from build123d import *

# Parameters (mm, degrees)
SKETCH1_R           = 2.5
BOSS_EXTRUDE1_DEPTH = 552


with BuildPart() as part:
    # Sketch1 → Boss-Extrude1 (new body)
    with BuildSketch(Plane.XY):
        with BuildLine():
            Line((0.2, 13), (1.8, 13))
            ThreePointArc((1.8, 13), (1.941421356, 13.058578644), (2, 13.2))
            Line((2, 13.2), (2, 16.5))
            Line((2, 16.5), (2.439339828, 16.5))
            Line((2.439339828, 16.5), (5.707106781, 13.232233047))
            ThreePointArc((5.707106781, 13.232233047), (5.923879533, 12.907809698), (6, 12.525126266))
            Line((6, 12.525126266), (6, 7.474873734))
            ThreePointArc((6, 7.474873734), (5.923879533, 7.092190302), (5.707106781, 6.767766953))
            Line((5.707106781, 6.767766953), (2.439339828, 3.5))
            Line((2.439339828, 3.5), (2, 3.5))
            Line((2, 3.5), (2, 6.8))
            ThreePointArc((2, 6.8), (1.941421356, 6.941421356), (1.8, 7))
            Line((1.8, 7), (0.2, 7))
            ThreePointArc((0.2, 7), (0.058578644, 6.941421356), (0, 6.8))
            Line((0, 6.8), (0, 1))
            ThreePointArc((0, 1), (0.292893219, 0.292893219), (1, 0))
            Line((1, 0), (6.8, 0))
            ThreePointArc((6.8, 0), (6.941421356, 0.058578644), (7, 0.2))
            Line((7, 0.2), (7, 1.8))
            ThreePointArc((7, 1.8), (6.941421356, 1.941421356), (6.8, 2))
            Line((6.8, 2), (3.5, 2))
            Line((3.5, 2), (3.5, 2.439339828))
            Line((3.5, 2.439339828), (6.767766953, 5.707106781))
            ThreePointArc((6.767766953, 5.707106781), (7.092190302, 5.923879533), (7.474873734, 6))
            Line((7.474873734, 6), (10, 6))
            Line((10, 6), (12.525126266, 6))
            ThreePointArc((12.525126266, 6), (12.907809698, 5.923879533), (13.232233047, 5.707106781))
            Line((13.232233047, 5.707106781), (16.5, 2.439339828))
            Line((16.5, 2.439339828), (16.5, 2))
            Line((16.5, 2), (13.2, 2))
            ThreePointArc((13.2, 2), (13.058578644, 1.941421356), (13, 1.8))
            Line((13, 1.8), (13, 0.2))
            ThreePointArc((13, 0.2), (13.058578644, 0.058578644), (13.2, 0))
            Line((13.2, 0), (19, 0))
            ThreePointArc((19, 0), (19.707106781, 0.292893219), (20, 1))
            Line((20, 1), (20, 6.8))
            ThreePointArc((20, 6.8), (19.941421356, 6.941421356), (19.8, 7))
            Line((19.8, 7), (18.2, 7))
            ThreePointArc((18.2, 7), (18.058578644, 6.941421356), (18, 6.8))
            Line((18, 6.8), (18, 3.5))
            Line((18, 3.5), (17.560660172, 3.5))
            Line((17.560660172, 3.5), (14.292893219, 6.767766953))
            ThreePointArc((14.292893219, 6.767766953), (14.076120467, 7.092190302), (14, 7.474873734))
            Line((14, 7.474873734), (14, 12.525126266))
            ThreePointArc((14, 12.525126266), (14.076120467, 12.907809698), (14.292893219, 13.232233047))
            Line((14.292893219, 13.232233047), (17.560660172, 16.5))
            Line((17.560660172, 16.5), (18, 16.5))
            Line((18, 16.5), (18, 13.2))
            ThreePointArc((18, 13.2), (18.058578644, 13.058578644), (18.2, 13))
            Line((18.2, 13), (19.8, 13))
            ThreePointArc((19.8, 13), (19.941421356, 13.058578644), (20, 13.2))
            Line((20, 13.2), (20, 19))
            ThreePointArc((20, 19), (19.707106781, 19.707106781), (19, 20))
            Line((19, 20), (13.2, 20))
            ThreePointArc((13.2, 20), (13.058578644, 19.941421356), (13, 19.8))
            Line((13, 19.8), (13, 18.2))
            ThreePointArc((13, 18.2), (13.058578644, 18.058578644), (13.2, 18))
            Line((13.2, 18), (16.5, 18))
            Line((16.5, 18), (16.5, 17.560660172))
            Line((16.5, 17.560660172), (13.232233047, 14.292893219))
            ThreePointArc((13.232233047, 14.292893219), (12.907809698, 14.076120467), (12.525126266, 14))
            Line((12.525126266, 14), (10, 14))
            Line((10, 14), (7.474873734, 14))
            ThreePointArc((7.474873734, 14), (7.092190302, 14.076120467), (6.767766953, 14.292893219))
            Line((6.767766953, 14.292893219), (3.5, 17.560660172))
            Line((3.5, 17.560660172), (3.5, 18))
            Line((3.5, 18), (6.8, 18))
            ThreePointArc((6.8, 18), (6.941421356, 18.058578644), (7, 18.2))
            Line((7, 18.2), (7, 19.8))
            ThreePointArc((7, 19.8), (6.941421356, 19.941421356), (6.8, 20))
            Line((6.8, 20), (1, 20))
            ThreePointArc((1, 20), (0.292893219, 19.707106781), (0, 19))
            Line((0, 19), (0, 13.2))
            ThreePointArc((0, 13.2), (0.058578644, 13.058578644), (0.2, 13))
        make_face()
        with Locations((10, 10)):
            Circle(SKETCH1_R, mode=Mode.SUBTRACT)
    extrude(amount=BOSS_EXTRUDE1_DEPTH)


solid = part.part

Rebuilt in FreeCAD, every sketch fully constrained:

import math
import FreeCAD as App
import Part
import Sketcher

doc = App.newDocument("Part")
body = doc.addObject("PartDesign::Body", "Body")

sketch1 = doc.addObject("Sketcher::SketchObject", "Sketch")
body.addObject(sketch1)
sketch1.AttachmentSupport = (doc.XY_Plane, [""])
sketch1.MapMode = "FlatFace"
sketch1.addGeometry(Part.LineSegment(App.Vector(0.2, 13, 0), App.Vector(1.8, 13, 0)), False)
sketch1.addGeometry(Part.ArcOfCircle(Part.Circle(App.Vector(1.8, 13.2, 0), App.Vector(0, 0, 1), 0.2), math.radians(-90), math.radians(0)), False)
sketch1.addGeometry(Part.LineSegment(App.Vector(2, 13.2, 0), App.Vector(2, 16.5, 0)), False)
sketch1.addGeometry(Part.LineSegment(App.Vector(2, 16.5, 0), App.Vector(2.44, 16.5, 0)), False)
sketch1.addGeometry(Part.LineSegment(App.Vector(2.44, 16.5, 0), App.Vector(5.71, 13.23, 0)), False)
sketch1.addGeometry(Part.ArcOfCircle(Part.Circle(App.Vector(5, 12.53, 0), App.Vector(0, 0, 1), 1), math.radians(0), math.radians(45)), False)
sketch1.addGeometry(Part.LineSegment(App.Vector(6, 12.53, 0), App.Vector(6, 7.47, 0)), False)
sketch1.addGeometry(Part.ArcOfCircle(Part.Circle(App.Vector(5, 7.47, 0), App.Vector(0, 0, 1), 1), math.radians(-45), math.radians(0)), False)
sketch1.addGeometry(Part.LineSegment(App.Vector(5.71, 6.77, 0), App.Vector(2.44, 3.5, 0)), False)
sketch1.addGeometry(Part.LineSegment(App.Vector(2.44, 3.5, 0), App.Vector(2, 3.5, 0)), False)
sketch1.addGeometry(Part.LineSegment(App.Vector(2, 3.5, 0), App.Vector(2, 6.8, 0)), False)
sketch1.addGeometry(Part.ArcOfCircle(Part.Circle(App.Vector(1.8, 6.8, 0), App.Vector(0, 0, 1), 0.2), math.radians(0), math.radians(90)), False)
sketch1.addGeometry(Part.LineSegment(App.Vector(1.8, 7, 0), App.Vector(0.2, 7, 0)), False)
sketch1.addGeometry(Part.ArcOfCircle(Part.Circle(App.Vector(0.2, 6.8, 0), App.Vector(0, 0, 1), 0.2), math.radians(90), math.radians(180)), False)
sketch1.addGeometry(Part.LineSegment(App.Vector(0, 6.8, 0), App.Vector(0, 1, 0)), False)
sketch1.addGeometry(Part.ArcOfCircle(Part.Circle(App.Vector(1, 1, 0), App.Vector(0, 0, 1), 1), math.radians(-180), math.radians(-90)), False)
sketch1.addGeometry(Part.LineSegment(App.Vector(1, 0, 0), App.Vector(6.8, 0, 0)), False)
sketch1.addGeometry(Part.ArcOfCircle(Part.Circle(App.Vector(6.8, 0.2, 0), App.Vector(0, 0, 1), 0.2), math.radians(-90), math.radians(0)), False)
sketch1.addGeometry(Part.LineSegment(App.Vector(7, 0.2, 0), App.Vector(7, 1.8, 0)), False)
sketch1.addGeometry(Part.ArcOfCircle(Part.Circle(App.Vector(6.8, 1.8, 0), App.Vector(0, 0, 1), 0.2), math.radians(0), math.radians(90)), False)
sketch1.addGeometry(Part.LineSegment(App.Vector(6.8, 2, 0), App.Vector(3.5, 2, 0)), False)
sketch1.addGeometry(Part.LineSegment(App.Vector(3.5, 2, 0), App.Vector(3.5, 2.44, 0)), False)
sketch1.addGeometry(Part.LineSegment(App.Vector(3.5, 2.44, 0), App.Vector(6.77, 5.71, 0)), False)
sketch1.addGeometry(Part.ArcOfCircle(Part.Circle(App.Vector(7.47, 5, 0), App.Vector(0, 0, 1), 1), math.radians(90), math.radians(135)), False)
sketch1.addGeometry(Part.LineSegment(App.Vector(7.47, 6, 0), App.Vector(12.53, 6, 0)), False)
sketch1.addGeometry(Part.ArcOfCircle(Part.Circle(App.Vector(12.53, 5, 0), App.Vector(0, 0, 1), 1), math.radians(45), math.radians(90)), False)
sketch1.addGeometry(Part.LineSegment(App.Vector(13.23, 5.71, 0), App.Vector(16.5, 2.44, 0)), False)
sketch1.addGeometry(Part.LineSegment(App.Vector(16.5, 2.44, 0), App.Vector(16.5, 2, 0)), False)
sketch1.addGeometry(Part.LineSegment(App.Vector(16.5, 2, 0), App.Vector(13.2, 2, 0)), False)
sketch1.addGeometry(Part.ArcOfCircle(Part.Circle(App.Vector(13.2, 1.8, 0), App.Vector(0, 0, 1), 0.2), math.radians(90), math.radians(180)), False)
sketch1.addGeometry(Part.LineSegment(App.Vector(13, 1.8, 0), App.Vector(13, 0.2, 0)), False)
sketch1.addGeometry(Part.ArcOfCircle(Part.Circle(App.Vector(13.2, 0.2, 0), App.Vector(0, 0, 1), 0.2), math.radians(-180), math.radians(-90)), False)
sketch1.addGeometry(Part.LineSegment(App.Vector(13.2, 0, 0), App.Vector(19, 0, 0)), False)
sketch1.addGeometry(Part.ArcOfCircle(Part.Circle(App.Vector(19, 1, 0), App.Vector(0, 0, 1), 1), math.radians(-90), math.radians(0)), False)
sketch1.addGeometry(Part.LineSegment(App.Vector(20, 1, 0), App.Vector(20, 6.8, 0)), False)
sketch1.addGeometry(Part.ArcOfCircle(Part.Circle(App.Vector(19.8, 6.8, 0), App.Vector(0, 0, 1), 0.2), math.radians(0), math.radians(90)), False)
sketch1.addGeometry(Part.LineSegment(App.Vector(19.8, 7, 0), App.Vector(18.2, 7, 0)), False)
sketch1.addGeometry(Part.ArcOfCircle(Part.Circle(App.Vector(18.2, 6.8, 0), App.Vector(0, 0, 1), 0.2), math.radians(90), math.radians(180)), False)
sketch1.addGeometry(Part.LineSegment(App.Vector(18, 6.8, 0), App.Vector(18, 3.5, 0)), False)
sketch1.addGeometry(Part.LineSegment(App.Vector(18, 3.5, 0), App.Vector(17.56, 3.5, 0)), False)
sketch1.addGeometry(Part.LineSegment(App.Vector(17.56, 3.5, 0), App.Vector(14.29, 6.77, 0)), False)
sketch1.addGeometry(Part.ArcOfCircle(Part.Circle(App.Vector(15, 7.47, 0), App.Vector(0, 0, 1), 1), math.radians(180), math.radians(225)), False)
sketch1.addGeometry(Part.LineSegment(App.Vector(14, 7.47, 0), App.Vector(14, 12.53, 0)), False)
sketch1.addGeometry(Part.ArcOfCircle(Part.Circle(App.Vector(15, 12.53, 0), App.Vector(0, 0, 1), 1), math.radians(135), math.radians(180)), False)
sketch1.addGeometry(Part.LineSegment(App.Vector(14.29, 13.23, 0), App.Vector(17.56, 16.5, 0)), False)
sketch1.addGeometry(Part.LineSegment(App.Vector(17.56, 16.5, 0), App.Vector(18, 16.5, 0)), False)
sketch1.addGeometry(Part.LineSegment(App.Vector(18, 16.5, 0), App.Vector(18, 13.2, 0)), False)
sketch1.addGeometry(Part.ArcOfCircle(Part.Circle(App.Vector(18.2, 13.2, 0), App.Vector(0, 0, 1), 0.2), math.radians(-180), math.radians(-90)), False)
sketch1.addGeometry(Part.LineSegment(App.Vector(18.2, 13, 0), App.Vector(19.8, 13, 0)), False)
sketch1.addGeometry(Part.ArcOfCircle(Part.Circle(App.Vector(19.8, 13.2, 0), App.Vector(0, 0, 1), 0.2), math.radians(-90), math.radians(0)), False)
sketch1.addGeometry(Part.LineSegment(App.Vector(20, 13.2, 0), App.Vector(20, 19, 0)), False)
sketch1.addGeometry(Part.ArcOfCircle(Part.Circle(App.Vector(19, 19, 0), App.Vector(0, 0, 1), 1), math.radians(0), math.radians(90)), False)
sketch1.addGeometry(Part.LineSegment(App.Vector(19, 20, 0), App.Vector(13.2, 20, 0)), False)
sketch1.addGeometry(Part.ArcOfCircle(Part.Circle(App.Vector(13.2, 19.8, 0), App.Vector(0, 0, 1), 0.2), math.radians(90), math.radians(180)), False)
sketch1.addGeometry(Part.LineSegment(App.Vector(13, 19.8, 0), App.Vector(13, 18.2, 0)), False)
sketch1.addGeometry(Part.ArcOfCircle(Part.Circle(App.Vector(13.2, 18.2, 0), App.Vector(0, 0, 1), 0.2), math.radians(-180), math.radians(-90)), False)
sketch1.addGeometry(Part.LineSegment(App.Vector(13.2, 18, 0), App.Vector(16.5, 18, 0)), False)
sketch1.addGeometry(Part.LineSegment(App.Vector(16.5, 18, 0), App.Vector(16.5, 17.56, 0)), False)
sketch1.addGeometry(Part.LineSegment(App.Vector(16.5, 17.56, 0), App.Vector(13.23, 14.29, 0)), False)
sketch1.addGeometry(Part.ArcOfCircle(Part.Circle(App.Vector(12.53, 15, 0), App.Vector(0, 0, 1), 1), math.radians(-90), math.radians(-45)), False)
sketch1.addGeometry(Part.LineSegment(App.Vector(12.53, 14, 0), App.Vector(7.47, 14, 0)), False)
sketch1.addGeometry(Part.ArcOfCircle(Part.Circle(App.Vector(7.47, 15, 0), App.Vector(0, 0, 1), 1), math.radians(-135), math.radians(-90)), False)
sketch1.addGeometry(Part.LineSegment(App.Vector(6.77, 14.29, 0), App.Vector(3.5, 17.56, 0)), False)
sketch1.addGeometry(Part.LineSegment(App.Vector(3.5, 17.56, 0), App.Vector(3.5, 18, 0)), False)
sketch1.addGeometry(Part.LineSegment(App.Vector(3.5, 18, 0), App.Vector(6.8, 18, 0)), False)
sketch1.addGeometry(Part.ArcOfCircle(Part.Circle(App.Vector(6.8, 18.2, 0), App.Vector(0, 0, 1), 0.2), math.radians(-90), math.radians(0)), False)
sketch1.addGeometry(Part.LineSegment(App.Vector(7, 18.2, 0), App.Vector(7, 19.8, 0)), False)
sketch1.addGeometry(Part.ArcOfCircle(Part.Circle(App.Vector(6.8, 19.8, 0), App.Vector(0, 0, 1), 0.2), math.radians(0), math.radians(90)), False)
sketch1.addGeometry(Part.LineSegment(App.Vector(6.8, 20, 0), App.Vector(1, 20, 0)), False)
sketch1.addGeometry(Part.ArcOfCircle(Part.Circle(App.Vector(1, 19, 0), App.Vector(0, 0, 1), 1), math.radians(90), math.radians(180)), False)
sketch1.addGeometry(Part.LineSegment(App.Vector(0, 19, 0), App.Vector(0, 13.2, 0)), False)
sketch1.addGeometry(Part.ArcOfCircle(Part.Circle(App.Vector(0.2, 13.2, 0), App.Vector(0, 0, 1), 0.2), math.radians(-180), math.radians(-90)), False)
sketch1.addGeometry(Part.Circle(App.Vector(10, 10, 0), App.Vector(0, 0, 1), 2.5), False)
sketch1.addConstraint(Sketcher.Constraint("Tangent", 0, 2, 1, 1))
sketch1.addConstraint(Sketcher.Constraint("Tangent", 1, 2, 2, 1))
sketch1.addConstraint(Sketcher.Constraint("Coincident", 2, 2, 3, 1))
sketch1.addConstraint(Sketcher.Constraint("Coincident", 3, 2, 4, 1))
sketch1.addConstraint(Sketcher.Constraint("Tangent", 4, 2, 5, 2))
sketch1.addConstraint(Sketcher.Constraint("Tangent", 5, 1, 6, 1))
sketch1.addConstraint(Sketcher.Constraint("Tangent", 6, 2, 7, 2))
sketch1.addConstraint(Sketcher.Constraint("Tangent", 7, 1, 8, 1))
sketch1.addConstraint(Sketcher.Constraint("Coincident", 8, 2, 9, 1))
sketch1.addConstraint(Sketcher.Constraint("Coincident", 9, 2, 10, 1))
sketch1.addConstraint(Sketcher.Constraint("Tangent", 10, 2, 11, 1))
sketch1.addConstraint(Sketcher.Constraint("Tangent", 11, 2, 12, 1))
sketch1.addConstraint(Sketcher.Constraint("Tangent", 12, 2, 13, 1))
sketch1.addConstraint(Sketcher.Constraint("Tangent", 13, 2, 14, 1))
sketch1.addConstraint(Sketcher.Constraint("Tangent", 14, 2, 15, 1))
sketch1.addConstraint(Sketcher.Constraint("Tangent", 15, 2, 16, 1))
sketch1.addConstraint(Sketcher.Constraint("Tangent", 16, 2, 17, 1))
sketch1.addConstraint(Sketcher.Constraint("Tangent", 17, 2, 18, 1))
sketch1.addConstraint(Sketcher.Constraint("Tangent", 18, 2, 19, 1))
sketch1.addConstraint(Sketcher.Constraint("Tangent", 19, 2, 20, 1))
sketch1.addConstraint(Sketcher.Constraint("Coincident", 20, 2, 21, 1))
sketch1.addConstraint(Sketcher.Constraint("Coincident", 21, 2, 22, 1))
sketch1.addConstraint(Sketcher.Constraint("Tangent", 22, 2, 23, 2))
sketch1.addConstraint(Sketcher.Constraint("Tangent", 23, 1, 24, 1))
sketch1.addConstraint(Sketcher.Constraint("Tangent", 24, 2, 25, 2))
sketch1.addConstraint(Sketcher.Constraint("Tangent", 25, 1, 26, 1))
sketch1.addConstraint(Sketcher.Constraint("Coincident", 26, 2, 27, 1))
sketch1.addConstraint(Sketcher.Constraint("Coincident", 27, 2, 28, 1))
sketch1.addConstraint(Sketcher.Constraint("Tangent", 28, 2, 29, 1))
sketch1.addConstraint(Sketcher.Constraint("Tangent", 29, 2, 30, 1))
sketch1.addConstraint(Sketcher.Constraint("Tangent", 30, 2, 31, 1))
sketch1.addConstraint(Sketcher.Constraint("Tangent", 31, 2, 32, 1))
sketch1.addConstraint(Sketcher.Constraint("Tangent", 32, 2, 33, 1))
sketch1.addConstraint(Sketcher.Constraint("Tangent", 33, 2, 34, 1))
sketch1.addConstraint(Sketcher.Constraint("Tangent", 34, 2, 35, 1))
sketch1.addConstraint(Sketcher.Constraint("Tangent", 35, 2, 36, 1))
sketch1.addConstraint(Sketcher.Constraint("Tangent", 36, 2, 37, 1))
sketch1.addConstraint(Sketcher.Constraint("Tangent", 37, 2, 38, 1))
sketch1.addConstraint(Sketcher.Constraint("Coincident", 38, 2, 39, 1))
sketch1.addConstraint(Sketcher.Constraint("Coincident", 39, 2, 40, 1))
sketch1.addConstraint(Sketcher.Constraint("Tangent", 40, 2, 41, 2))
sketch1.addConstraint(Sketcher.Constraint("Tangent", 41, 1, 42, 1))
sketch1.addConstraint(Sketcher.Constraint("Tangent", 42, 2, 43, 2))
sketch1.addConstraint(Sketcher.Constraint("Tangent", 43, 1, 44, 1))
sketch1.addConstraint(Sketcher.Constraint("Coincident", 44, 2, 45, 1))
sketch1.addConstraint(Sketcher.Constraint("Coincident", 45, 2, 46, 1))
sketch1.addConstraint(Sketcher.Constraint("Tangent", 46, 2, 47, 1))
sketch1.addConstraint(Sketcher.Constraint("Tangent", 47, 2, 48, 1))
sketch1.addConstraint(Sketcher.Constraint("Tangent", 48, 2, 49, 1))
sketch1.addConstraint(Sketcher.Constraint("Tangent", 49, 2, 50, 1))
sketch1.addConstraint(Sketcher.Constraint("Tangent", 50, 2, 51, 1))
sketch1.addConstraint(Sketcher.Constraint("Tangent", 51, 2, 52, 1))
sketch1.addConstraint(Sketcher.Constraint("Tangent", 52, 2, 53, 1))
sketch1.addConstraint(Sketcher.Constraint("Tangent", 53, 2, 54, 1))
sketch1.addConstraint(Sketcher.Constraint("Tangent", 54, 2, 55, 1))
sketch1.addConstraint(Sketcher.Constraint("Tangent", 55, 2, 56, 1))
sketch1.addConstraint(Sketcher.Constraint("Coincident", 56, 2, 57, 1))
sketch1.addConstraint(Sketcher.Constraint("Coincident", 57, 2, 58, 1))
sketch1.addConstraint(Sketcher.Constraint("Tangent", 58, 2, 59, 2))
sketch1.addConstraint(Sketcher.Constraint("Tangent", 59, 1, 60, 1))
sketch1.addConstraint(Sketcher.Constraint("Tangent", 60, 2, 61, 2))
sketch1.addConstraint(Sketcher.Constraint("Tangent", 61, 1, 62, 1))
sketch1.addConstraint(Sketcher.Constraint("Coincident", 62, 2, 63, 1))
sketch1.addConstraint(Sketcher.Constraint("Coincident", 63, 2, 64, 1))
sketch1.addConstraint(Sketcher.Constraint("Tangent", 64, 2, 65, 1))
sketch1.addConstraint(Sketcher.Constraint("Tangent", 65, 2, 66, 1))
sketch1.addConstraint(Sketcher.Constraint("Tangent", 66, 2, 67, 1))
sketch1.addConstraint(Sketcher.Constraint("Tangent", 67, 2, 68, 1))
sketch1.addConstraint(Sketcher.Constraint("Tangent", 68, 2, 69, 1))
sketch1.addConstraint(Sketcher.Constraint("Tangent", 69, 2, 70, 1))
sketch1.addConstraint(Sketcher.Constraint("Tangent", 70, 2, 71, 1))
sketch1.addConstraint(Sketcher.Constraint("Tangent", 71, 2, 0, 1))
sketch1.addConstraint(Sketcher.Constraint("Horizontal", 0))
sketch1.addConstraint(Sketcher.Constraint("Vertical", 2))
sketch1.addConstraint(Sketcher.Constraint("Horizontal", 3))
sketch1.addConstraint(Sketcher.Constraint("Vertical", 6))
sketch1.addConstraint(Sketcher.Constraint("Horizontal", 9))
sketch1.addConstraint(Sketcher.Constraint("Vertical", 10))
sketch1.addConstraint(Sketcher.Constraint("Horizontal", 12))
sketch1.addConstraint(Sketcher.Constraint("Vertical", 14))
sketch1.addConstraint(Sketcher.Constraint("Horizontal", 16))
sketch1.addConstraint(Sketcher.Constraint("Vertical", 18))
sketch1.addConstraint(Sketcher.Constraint("Horizontal", 20))
sketch1.addConstraint(Sketcher.Constraint("Vertical", 21))
sketch1.addConstraint(Sketcher.Constraint("Horizontal", 24))
sketch1.addConstraint(Sketcher.Constraint("Vertical", 27))
sketch1.addConstraint(Sketcher.Constraint("Horizontal", 28))
sketch1.addConstraint(Sketcher.Constraint("Vertical", 30))
sketch1.addConstraint(Sketcher.Constraint("Horizontal", 32))
sketch1.addConstraint(Sketcher.Constraint("Vertical", 34))
sketch1.addConstraint(Sketcher.Constraint("Horizontal", 36))
sketch1.addConstraint(Sketcher.Constraint("Vertical", 38))
sketch1.addConstraint(Sketcher.Constraint("Horizontal", 39))
sketch1.addConstraint(Sketcher.Constraint("Vertical", 42))
sketch1.addConstraint(Sketcher.Constraint("Horizontal", 45))
sketch1.addConstraint(Sketcher.Constraint("Vertical", 46))
sketch1.addConstraint(Sketcher.Constraint("Horizontal", 48))
sketch1.addConstraint(Sketcher.Constraint("Vertical", 50))
sketch1.addConstraint(Sketcher.Constraint("Horizontal", 52))
sketch1.addConstraint(Sketcher.Constraint("Vertical", 54))
sketch1.addConstraint(Sketcher.Constraint("Horizontal", 56))
sketch1.addConstraint(Sketcher.Constraint("Vertical", 57))
sketch1.addConstraint(Sketcher.Constraint("Horizontal", 60))
sketch1.addConstraint(Sketcher.Constraint("Vertical", 63))
sketch1.addConstraint(Sketcher.Constraint("Horizontal", 64))
sketch1.addConstraint(Sketcher.Constraint("Vertical", 66))
sketch1.addConstraint(Sketcher.Constraint("Horizontal", 68))
sketch1.addConstraint(Sketcher.Constraint("Vertical", 70))
sketch1.addConstraint(Sketcher.Constraint("Equal", 5, 7))
sketch1.addConstraint(Sketcher.Constraint("Equal", 1, 11))
sketch1.addConstraint(Sketcher.Constraint("Equal", 11, 13))
sketch1.addConstraint(Sketcher.Constraint("Equal", 7, 15))
sketch1.addConstraint(Sketcher.Constraint("Equal", 13, 17))
sketch1.addConstraint(Sketcher.Constraint("Equal", 17, 19))
sketch1.addConstraint(Sketcher.Constraint("Equal", 15, 23))
sketch1.addConstraint(Sketcher.Constraint("Equal", 23, 25))
sketch1.addConstraint(Sketcher.Constraint("Equal", 19, 29))
sketch1.addConstraint(Sketcher.Constraint("Equal", 29, 31))
sketch1.addConstraint(Sketcher.Constraint("Equal", 25, 33))
sketch1.addConstraint(Sketcher.Constraint("Equal", 31, 35))
sketch1.addConstraint(Sketcher.Constraint("Equal", 35, 37))
sketch1.addConstraint(Sketcher.Constraint("Equal", 33, 41))
sketch1.addConstraint(Sketcher.Constraint("Equal", 41, 43))
sketch1.addConstraint(Sketcher.Constraint("Equal", 37, 47))
sketch1.addConstraint(Sketcher.Constraint("Equal", 47, 49))
sketch1.addConstraint(Sketcher.Constraint("Equal", 43, 51))
sketch1.addConstraint(Sketcher.Constraint("Equal", 49, 53))
sketch1.addConstraint(Sketcher.Constraint("Equal", 53, 55))
sketch1.addConstraint(Sketcher.Constraint("Equal", 51, 59))
sketch1.addConstraint(Sketcher.Constraint("Equal", 59, 61))
sketch1.addConstraint(Sketcher.Constraint("Equal", 55, 65))
sketch1.addConstraint(Sketcher.Constraint("Equal", 65, 67))
sketch1.addConstraint(Sketcher.Constraint("Equal", 61, 69))
sketch1.addConstraint(Sketcher.Constraint("Equal", 67, 71))
sketch1.addConstraint(Sketcher.Constraint("PointOnObject", 13, 2, -2))
sketch1.addConstraint(Sketcher.Constraint("PointOnObject", 15, 2, -1))
sketch1.addConstraint(Sketcher.Constraint("PointOnObject", 31, 2, -1))
sketch1.addConstraint(Sketcher.Constraint("PointOnObject", 69, 2, -2))
sketch1.addConstraint(Sketcher.Constraint("Perpendicular", 4, 8))
sketch1.addConstraint(Sketcher.Constraint("Parallel", 8, 22))
sketch1.addConstraint(Sketcher.Constraint("Perpendicular", 22, 26))
sketch1.addConstraint(Sketcher.Constraint("Parallel", 26, 40))
sketch1.addConstraint(Sketcher.Constraint("Perpendicular", 40, 44))
sketch1.addConstraint(Sketcher.Constraint("Parallel", 44, 58))
sketch1.addConstraint(Sketcher.Constraint("Perpendicular", 58, 62))
sketch1.addConstraint(Sketcher.Constraint("Horizontal", 19, 3, 29, 3))
sketch1.addConstraint(Sketcher.Constraint("Horizontal", 13, 3, 35, 3))
sketch1.addConstraint(Sketcher.Constraint("Horizontal", 7, 3, 41, 3))
sketch1.addConstraint(Sketcher.Constraint("Horizontal", 5, 3, 43, 3))
sketch1.addConstraint(Sketcher.Constraint("Horizontal", 1, 3, 47, 3))
sketch1.addConstraint(Sketcher.Constraint("Horizontal", 55, 3, 65, 3))
sketch1.addConstraint(Sketcher.Constraint("Horizontal", 53, 3, 67, 3))
sketch1.addConstraint(Sketcher.Constraint("Horizontal", 22, 2, 25, 1))
sketch1.addConstraint(Sketcher.Constraint("Horizontal", 21, 2, 26, 2))
sketch1.addConstraint(Sketcher.Constraint("Horizontal", 9, 2, 38, 2))
sketch1.addConstraint(Sketcher.Constraint("Horizontal", 3, 2, 44, 2))
sketch1.addConstraint(Sketcher.Constraint("Horizontal", 57, 2, 62, 2))
sketch1.addConstraint(Sketcher.Constraint("Vertical", 1, 3, 11, 3))
sketch1.addConstraint(Sketcher.Constraint("Vertical", 37, 3, 47, 3))
sketch1.addConstraint(Sketcher.Constraint("Vertical", 35, 3, 49, 3))
sketch1.addConstraint(Sketcher.Constraint("Vertical", 31, 3, 53, 3))
sketch1.addConstraint(Sketcher.Constraint("Vertical", 25, 3, 59, 3))
sketch1.addConstraint(Sketcher.Constraint("Vertical", 23, 3, 61, 3))
sketch1.addConstraint(Sketcher.Constraint("Vertical", 19, 3, 65, 3))
sketch1.addConstraint(Sketcher.Constraint("Vertical", 3, 2, 8, 2))
sketch1.addConstraint(Sketcher.Constraint("Vertical", 27, 2, 56, 2))
sketch1.addConstraint(Sketcher.Constraint("Equal", 20, 28))
sketch1.addConstraint(Sketcher.Constraint("Equal", 16, 32))
sketch1.addConstraint(Sketcher.Constraint("Equal", 12, 36))
sketch1.addConstraint(Sketcher.Constraint("Equal", 9, 39))
sketch1.addConstraint(Sketcher.Constraint("Equal", 64, 2))
sketch1.addConstraint(Sketcher.Constraint("Equal", 60, 6))
sketch1.addConstraint(Sketcher.Constraint("Equal", 2, 10))
sketch1.addConstraint(Sketcher.Constraint("Equal", 68, 14))
sketch1.addConstraint(Sketcher.Constraint("Equal", 48, 18))
sketch1.addConstraint(Sketcher.Constraint("Equal", 45, 21))
sketch1.addConstraint(Sketcher.Constraint("Equal", 34, 50))
sketch1.addConstraint(Sketcher.Constraint("Equal", 30, 54))
sketch1.addConstraint(Sketcher.Constraint("Equal", 27, 57))
sketch1.addConstraint(Sketcher.Constraint("Equal", 8, 22))
sketch1.addConstraint(Sketcher.Constraint("Diameter", 72, 5.0))
sketch1.addConstraint(Sketcher.Constraint("Radius", 5, 1.0))
sketch1.addConstraint(Sketcher.Constraint("Radius", 1, 0.2))
sketch1.addConstraint(Sketcher.Constraint("DistanceX", 0, 1, 0, 2, 1.6))
sketch1.addConstraint(Sketcher.Constraint("DistanceX", 16, 1, 16, 2, 5.8))
sketch1.addConstraint(Sketcher.Constraint("DistanceX", 20, 2, 20, 1, 3.3))
sketch1.addConstraint(Sketcher.Constraint("DistanceX", -1, 1, 5, 3, 5.0))
sketch1.addConstraint(Sketcher.Constraint("DistanceX", -1, 1, 33, 3, 19.0))
sketch1.addConstraint(Sketcher.Constraint("DistanceX", -1, 1, 72, 3, 10.0))
sketch1.addConstraint(Sketcher.Constraint("DistanceY", -1, 1, 72, 3, 10.0))
sketch1.addConstraint(Sketcher.Constraint("DistanceX", 3, 1, 3, 2, 0.43934))
pad1 = doc.addObject("PartDesign::Pad", "Pad")
body.addObject(pad1)
pad1.Profile = sketch1
pad1.Length = 552

doc.recompute()
